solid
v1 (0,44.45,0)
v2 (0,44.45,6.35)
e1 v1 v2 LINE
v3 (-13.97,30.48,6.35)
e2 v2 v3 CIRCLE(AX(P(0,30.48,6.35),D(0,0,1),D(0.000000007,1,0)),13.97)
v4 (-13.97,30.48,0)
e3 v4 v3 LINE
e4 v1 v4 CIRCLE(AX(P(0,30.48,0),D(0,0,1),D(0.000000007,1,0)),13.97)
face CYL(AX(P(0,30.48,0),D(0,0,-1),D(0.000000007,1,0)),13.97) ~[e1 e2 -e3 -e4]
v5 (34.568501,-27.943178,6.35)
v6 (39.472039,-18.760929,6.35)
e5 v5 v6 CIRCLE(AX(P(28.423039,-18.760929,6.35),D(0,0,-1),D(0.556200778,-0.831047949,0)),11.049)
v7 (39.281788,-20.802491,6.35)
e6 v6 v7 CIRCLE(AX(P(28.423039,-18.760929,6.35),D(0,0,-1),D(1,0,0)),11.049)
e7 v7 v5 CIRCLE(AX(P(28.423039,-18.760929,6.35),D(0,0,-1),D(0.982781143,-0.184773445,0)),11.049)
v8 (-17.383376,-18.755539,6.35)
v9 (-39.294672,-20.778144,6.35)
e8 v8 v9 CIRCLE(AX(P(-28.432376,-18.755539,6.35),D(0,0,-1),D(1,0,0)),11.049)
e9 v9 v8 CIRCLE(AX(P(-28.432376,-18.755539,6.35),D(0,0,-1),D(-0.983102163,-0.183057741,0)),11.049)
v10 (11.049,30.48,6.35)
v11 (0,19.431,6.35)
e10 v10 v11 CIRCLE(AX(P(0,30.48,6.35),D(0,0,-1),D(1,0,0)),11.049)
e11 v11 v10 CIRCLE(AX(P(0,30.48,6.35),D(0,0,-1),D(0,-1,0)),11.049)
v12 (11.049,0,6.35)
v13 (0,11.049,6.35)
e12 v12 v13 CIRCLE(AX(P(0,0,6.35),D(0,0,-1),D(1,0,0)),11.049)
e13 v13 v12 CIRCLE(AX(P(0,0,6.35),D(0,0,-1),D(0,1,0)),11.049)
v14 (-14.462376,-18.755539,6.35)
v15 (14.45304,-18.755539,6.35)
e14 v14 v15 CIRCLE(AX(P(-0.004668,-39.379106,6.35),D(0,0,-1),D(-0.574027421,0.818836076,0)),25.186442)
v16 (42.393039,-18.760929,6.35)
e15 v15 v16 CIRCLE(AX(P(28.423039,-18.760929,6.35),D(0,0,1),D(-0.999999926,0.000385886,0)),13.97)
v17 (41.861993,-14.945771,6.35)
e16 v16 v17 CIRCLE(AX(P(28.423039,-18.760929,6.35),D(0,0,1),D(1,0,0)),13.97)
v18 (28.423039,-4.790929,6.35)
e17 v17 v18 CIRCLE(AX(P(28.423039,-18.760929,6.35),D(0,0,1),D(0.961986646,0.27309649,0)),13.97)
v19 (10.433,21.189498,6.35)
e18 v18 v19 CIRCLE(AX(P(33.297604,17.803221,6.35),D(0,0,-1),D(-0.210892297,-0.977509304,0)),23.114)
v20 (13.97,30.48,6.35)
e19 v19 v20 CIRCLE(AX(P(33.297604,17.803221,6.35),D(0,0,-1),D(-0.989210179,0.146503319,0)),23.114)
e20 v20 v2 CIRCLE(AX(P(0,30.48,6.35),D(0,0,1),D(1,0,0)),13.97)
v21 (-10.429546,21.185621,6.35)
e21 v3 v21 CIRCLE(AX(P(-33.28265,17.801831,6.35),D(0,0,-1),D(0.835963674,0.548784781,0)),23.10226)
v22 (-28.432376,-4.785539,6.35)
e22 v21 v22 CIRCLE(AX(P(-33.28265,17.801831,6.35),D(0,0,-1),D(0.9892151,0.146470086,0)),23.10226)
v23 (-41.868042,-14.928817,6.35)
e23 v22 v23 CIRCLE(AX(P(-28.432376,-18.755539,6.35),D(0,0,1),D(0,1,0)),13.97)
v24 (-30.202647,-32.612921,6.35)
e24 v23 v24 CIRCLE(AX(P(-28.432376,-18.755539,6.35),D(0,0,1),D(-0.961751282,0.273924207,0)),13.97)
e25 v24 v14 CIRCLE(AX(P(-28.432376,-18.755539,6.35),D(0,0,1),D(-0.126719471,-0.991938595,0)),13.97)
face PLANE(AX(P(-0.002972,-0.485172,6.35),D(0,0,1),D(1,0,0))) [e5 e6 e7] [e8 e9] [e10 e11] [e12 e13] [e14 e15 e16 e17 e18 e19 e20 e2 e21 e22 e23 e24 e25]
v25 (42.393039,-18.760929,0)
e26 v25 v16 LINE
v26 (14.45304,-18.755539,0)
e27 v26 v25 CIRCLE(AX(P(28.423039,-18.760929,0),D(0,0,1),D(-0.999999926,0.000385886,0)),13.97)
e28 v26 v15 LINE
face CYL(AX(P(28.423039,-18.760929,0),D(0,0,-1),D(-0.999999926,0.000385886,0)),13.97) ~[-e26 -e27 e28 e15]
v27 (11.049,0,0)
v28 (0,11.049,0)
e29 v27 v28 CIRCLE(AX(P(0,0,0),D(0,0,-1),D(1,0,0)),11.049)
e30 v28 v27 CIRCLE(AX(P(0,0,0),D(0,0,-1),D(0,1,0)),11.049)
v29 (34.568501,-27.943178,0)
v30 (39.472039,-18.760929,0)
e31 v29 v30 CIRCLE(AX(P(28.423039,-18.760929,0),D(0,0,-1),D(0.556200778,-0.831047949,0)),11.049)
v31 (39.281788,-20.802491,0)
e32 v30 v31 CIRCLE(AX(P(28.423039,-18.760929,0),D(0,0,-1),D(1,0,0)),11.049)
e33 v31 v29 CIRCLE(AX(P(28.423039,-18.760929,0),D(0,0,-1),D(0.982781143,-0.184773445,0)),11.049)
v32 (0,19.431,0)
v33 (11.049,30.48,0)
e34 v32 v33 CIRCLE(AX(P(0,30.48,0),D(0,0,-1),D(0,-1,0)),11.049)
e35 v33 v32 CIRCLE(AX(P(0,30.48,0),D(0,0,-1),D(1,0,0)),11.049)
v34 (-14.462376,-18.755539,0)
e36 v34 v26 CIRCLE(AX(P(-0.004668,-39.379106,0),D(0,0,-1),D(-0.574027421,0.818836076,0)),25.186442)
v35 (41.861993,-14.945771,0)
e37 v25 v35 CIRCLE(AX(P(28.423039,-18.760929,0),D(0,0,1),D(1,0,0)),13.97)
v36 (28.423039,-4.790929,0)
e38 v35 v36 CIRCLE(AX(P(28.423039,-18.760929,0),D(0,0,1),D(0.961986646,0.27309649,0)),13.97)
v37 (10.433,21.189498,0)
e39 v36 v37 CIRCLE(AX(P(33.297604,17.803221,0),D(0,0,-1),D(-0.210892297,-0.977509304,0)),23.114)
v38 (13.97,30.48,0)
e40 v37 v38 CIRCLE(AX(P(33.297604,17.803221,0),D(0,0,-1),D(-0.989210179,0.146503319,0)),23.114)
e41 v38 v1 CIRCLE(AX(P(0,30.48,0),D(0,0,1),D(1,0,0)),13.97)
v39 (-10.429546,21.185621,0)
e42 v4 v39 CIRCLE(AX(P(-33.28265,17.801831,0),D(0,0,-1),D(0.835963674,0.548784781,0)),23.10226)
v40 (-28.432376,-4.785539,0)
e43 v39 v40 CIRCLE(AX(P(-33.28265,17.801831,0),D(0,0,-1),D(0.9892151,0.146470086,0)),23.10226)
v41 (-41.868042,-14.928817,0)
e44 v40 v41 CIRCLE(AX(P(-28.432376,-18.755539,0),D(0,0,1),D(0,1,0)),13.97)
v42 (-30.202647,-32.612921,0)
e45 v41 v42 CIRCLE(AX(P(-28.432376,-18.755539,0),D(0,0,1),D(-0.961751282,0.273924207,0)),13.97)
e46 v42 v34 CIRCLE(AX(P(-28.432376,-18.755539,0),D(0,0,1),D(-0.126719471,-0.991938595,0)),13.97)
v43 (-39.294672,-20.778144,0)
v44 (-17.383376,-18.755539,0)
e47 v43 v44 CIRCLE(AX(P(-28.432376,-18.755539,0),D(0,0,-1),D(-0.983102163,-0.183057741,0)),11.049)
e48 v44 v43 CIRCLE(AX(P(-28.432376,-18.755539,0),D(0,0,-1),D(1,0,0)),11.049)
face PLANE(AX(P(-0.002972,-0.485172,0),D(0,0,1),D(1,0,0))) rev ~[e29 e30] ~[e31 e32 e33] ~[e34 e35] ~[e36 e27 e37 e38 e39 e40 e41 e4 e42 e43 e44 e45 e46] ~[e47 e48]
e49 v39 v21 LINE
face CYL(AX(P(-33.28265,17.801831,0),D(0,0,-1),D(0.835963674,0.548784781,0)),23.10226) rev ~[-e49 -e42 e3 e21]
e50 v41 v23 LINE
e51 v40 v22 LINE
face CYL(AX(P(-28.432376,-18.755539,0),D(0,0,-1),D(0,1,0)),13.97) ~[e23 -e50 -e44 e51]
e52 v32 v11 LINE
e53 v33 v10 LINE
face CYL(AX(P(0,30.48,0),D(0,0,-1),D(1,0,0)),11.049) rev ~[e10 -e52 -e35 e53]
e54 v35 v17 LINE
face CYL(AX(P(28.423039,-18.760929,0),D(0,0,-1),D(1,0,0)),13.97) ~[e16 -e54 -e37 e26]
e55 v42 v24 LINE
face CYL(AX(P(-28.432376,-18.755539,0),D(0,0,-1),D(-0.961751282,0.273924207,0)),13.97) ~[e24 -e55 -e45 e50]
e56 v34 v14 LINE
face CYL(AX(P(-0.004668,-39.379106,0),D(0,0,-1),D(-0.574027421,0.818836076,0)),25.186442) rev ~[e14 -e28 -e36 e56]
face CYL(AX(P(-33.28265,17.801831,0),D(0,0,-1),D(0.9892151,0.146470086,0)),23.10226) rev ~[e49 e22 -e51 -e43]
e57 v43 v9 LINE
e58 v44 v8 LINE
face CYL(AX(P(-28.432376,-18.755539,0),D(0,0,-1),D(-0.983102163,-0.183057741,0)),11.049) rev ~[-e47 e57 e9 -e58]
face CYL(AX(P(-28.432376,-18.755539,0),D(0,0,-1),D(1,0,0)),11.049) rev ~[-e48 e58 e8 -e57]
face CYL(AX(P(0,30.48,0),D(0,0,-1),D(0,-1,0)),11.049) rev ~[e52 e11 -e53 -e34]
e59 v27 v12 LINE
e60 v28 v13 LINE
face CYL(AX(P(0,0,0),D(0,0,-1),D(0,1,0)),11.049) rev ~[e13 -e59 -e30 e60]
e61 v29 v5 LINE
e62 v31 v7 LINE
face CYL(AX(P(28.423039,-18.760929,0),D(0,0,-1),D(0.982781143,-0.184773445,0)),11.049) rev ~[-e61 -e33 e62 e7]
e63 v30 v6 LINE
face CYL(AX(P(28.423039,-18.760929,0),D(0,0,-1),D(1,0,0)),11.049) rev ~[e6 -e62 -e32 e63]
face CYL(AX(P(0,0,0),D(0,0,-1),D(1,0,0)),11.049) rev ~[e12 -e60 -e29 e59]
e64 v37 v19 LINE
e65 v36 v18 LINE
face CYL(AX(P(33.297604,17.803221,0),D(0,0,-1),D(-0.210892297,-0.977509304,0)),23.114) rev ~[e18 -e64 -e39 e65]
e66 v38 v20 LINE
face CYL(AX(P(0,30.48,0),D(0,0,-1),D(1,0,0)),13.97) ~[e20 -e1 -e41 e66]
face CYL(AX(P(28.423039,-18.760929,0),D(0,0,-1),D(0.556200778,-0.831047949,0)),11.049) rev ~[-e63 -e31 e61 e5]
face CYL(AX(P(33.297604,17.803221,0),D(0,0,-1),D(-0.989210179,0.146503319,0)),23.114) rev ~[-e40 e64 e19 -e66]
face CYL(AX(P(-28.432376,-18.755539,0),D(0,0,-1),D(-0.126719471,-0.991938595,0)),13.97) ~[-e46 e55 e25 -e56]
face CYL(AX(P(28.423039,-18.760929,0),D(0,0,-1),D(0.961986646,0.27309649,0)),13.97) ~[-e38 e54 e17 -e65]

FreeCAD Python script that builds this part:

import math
import FreeCAD as App
import Part
import Sketcher
Q = App.Units.Quantity

doc = App.newDocument("Part")
params = doc.addObject("Spreadsheet::Sheet", "Params")
for row, (alias, value) in enumerate([
    ("sketch1_radius", "0.55 in"),
    ("sketch1_radius2", "0.91 in"),
    ("sketch1_radius3", "0.435 in"),
    ("pad1_length", "0.25 in"),
], start=1):
    params.set(f"A{row}", alias)
    params.set(f"B{row}", "=" + value)
    params.setAlias(f"B{row}", alias)

body = doc.addObject("PartDesign::Body", "Body")

# Sketch on XY plane
sketch1 = body.newObject("Sketcher::SketchObject", "Sketch")
sketch1.AttachmentSupport = (doc.getObject("XY_Plane"), [""])
sketch1.MapMode = "FlatFace"
sketch1.addGeometry(Part.ArcOfCircle(Part.Circle(App.Vector(0, -39.4, 0), App.Vector(0, 0, 1), 25.2), math.radians(55), math.radians(125)), False)
sketch1.addGeometry(Part.ArcOfCircle(Part.Circle(App.Vector(28.4, -18.8, 0), App.Vector(0, 0, 1), 14), math.radians(180), math.radians(360)), False)
sketch1.addGeometry(Part.ArcOfCircle(Part.Circle(App.Vector(28.4, -18.8, 0), App.Vector(0, 0, 1), 14), math.radians(0), math.radians(15.85)), False)
sketch1.addGeometry(Part.ArcOfCircle(Part.Circle(App.Vector(28.4, -18.8, 0), App.Vector(0, 0, 1), 14), math.radians(16), math.radians(90)), False)
sketch1.addGeometry(Part.ArcOfCircle(Part.Circle(App.Vector(33.3, 17.8, 0), App.Vector(0, 0, 1), 23.1), math.radians(172), math.radians(258)), False)
sketch1.addGeometry(Part.ArcOfCircle(Part.Circle(App.Vector(33.3, 17.8, 0), App.Vector(0, 0, 1), 23.1), math.radians(147), math.radians(172)), False)
sketch1.addGeometry(Part.ArcOfCircle(Part.Circle(App.Vector(0, 30.5, 0), App.Vector(0, 0, 1), 14), math.radians(0), math.radians(90)), False)
sketch1.addGeometry(Part.ArcOfCircle(Part.Circle(App.Vector(0, 30.5, 0), App.Vector(0, 0, 1), 14), math.radians(90), math.radians(180)), False)
sketch1.addGeometry(Part.ArcOfCircle(Part.Circle(App.Vector(-33.3, 17.8, 0), App.Vector(0, 0, 1), 23.1), math.radians(8), math.radians(33)), False)
sketch1.addGeometry(Part.ArcOfCircle(Part.Circle(App.Vector(-33.3, 17.8, 0), App.Vector(0, 0, 1), 23.1), math.radians(-78), math.radians(8)), False)
sketch1.addGeometry(Part.ArcOfCircle(Part.Circle(App.Vector(-28.4, -18.8, 0), App.Vector(0, 0, 1), 14), math.radians(90), math.radians(164)), False)
sketch1.addGeometry(Part.ArcOfCircle(Part.Circle(App.Vector(-28.4, -18.8, 0), App.Vector(0, 0, 1), 14), math.radians(164), math.radians(263)), False)
sketch1.addGeometry(Part.ArcOfCircle(Part.Circle(App.Vector(-28.4, -18.8, 0), App.Vector(0, 0, 1), 14), math.radians(-97), math.radians(0)), False)
sketch1.addGeometry(Part.ArcOfCircle(Part.Circle(App.Vector(28.4, -18.8, 0), App.Vector(0, 0, 1), 11), math.radians(0), math.radians(304)), False)
sketch1.addGeometry(Part.ArcOfCircle(Part.Circle(App.Vector(28.4, -18.8, 0), App.Vector(0, 0, 1), 11), math.radians(-10.65), math.radians(0)), False)
sketch1.addGeometry(Part.ArcOfCircle(Part.Circle(App.Vector(28.4, -18.8, 0), App.Vector(0, 0, 1), 11), math.radians(-56), math.radians(-11)), False)
sketch1.addGeometry(Part.ArcOfCircle(Part.Circle(App.Vector(-28.4, -18.8, 0), App.Vector(0, 0, 1), 11), math.radians(0), math.radians(191)), False)
sketch1.addGeometry(Part.ArcOfCircle(Part.Circle(App.Vector(-28.4, -18.8, 0), App.Vector(0, 0, 1), 11), math.radians(-169), math.radians(0)), False)
sketch1.addGeometry(Part.ArcOfCircle(Part.Circle(App.Vector(0, 0, 0), App.Vector(0, 0, 1), 11), math.radians(0), math.radians(90)), False)
sketch1.addGeometry(Part.ArcOfCircle(Part.Circle(App.Vector(0, 0, 0), App.Vector(0, 0, 1), 11), math.radians(90), math.radians(360)), False)
sketch1.addGeometry(Part.ArcOfCircle(Part.Circle(App.Vector(0, 30.5, 0), App.Vector(0, 0, 1), 11), math.radians(0), math.radians(270)), False)
sketch1.addGeometry(Part.ArcOfCircle(Part.Circle(App.Vector(0, 30.5, 0), App.Vector(0, 0, 1), 11), math.radians(-90), math.radians(0)), False)
sketch1.addConstraint(Sketcher.Constraint("Coincident", 0, 1, 1, 1))
sketch1.addConstraint(Sketcher.Constraint("Tangent", 1, 2, 2, 1))
sketch1.addConstraint(Sketcher.Constraint("Tangent", 2, 2, 3, 1))
sketch1.addConstraint(Sketcher.Constraint("Coincident", 3, 2, 4, 2))
sketch1.addConstraint(Sketcher.Constraint("Tangent", 4, 1, 5, 2))
sketch1.addConstraint(Sketcher.Constraint("Coincident", 5, 1, 6, 1))
sketch1.addConstraint(Sketcher.Constraint("Tangent", 6, 2, 7, 1))
sketch1.addConstraint(Sketcher.Constraint("Coincident", 7, 2, 8, 2))
sketch1.addConstraint(Sketcher.Constraint("Tangent", 8, 1, 9, 2))
sketch1.addConstraint(Sketcher.Constraint("Coincident", 9, 1, 10, 1))
sketch1.addConstraint(Sketcher.Constraint("Tangent", 10, 2, 11, 1))
sketch1.addConstraint(Sketcher.Constraint("Tangent", 11, 2, 12, 1))
sketch1.addConstraint(Sketcher.Constraint("Coincident", 12, 2, 0, 2))
sketch1.addConstraint(Sketcher.Constraint("Tangent", 13, 1, 14, 2))
sketch1.addConstraint(Sketcher.Constraint("Tangent", 14, 1, 15, 2))
sketch1.addConstraint(Sketcher.Constraint("Tangent", 15, 1, 13, 2))
sketch1.addConstraint(Sketcher.Constraint("Tangent", 16, 1, 17, 2))
sketch1.addConstraint(Sketcher.Constraint("Coincident", 17, 1, 16, 2))
sketch1.addConstraint(Sketcher.Constraint("Tangent", 18, 1, 19, 2))
sketch1.addConstraint(Sketcher.Constraint("Coincident", 19, 1, 18, 2))
sketch1.addConstraint(Sketcher.Constraint("Tangent", 20, 1, 21, 2))
sketch1.addConstraint(Sketcher.Constraint("Coincident", 21, 1, 20, 2))
sketch1.addConstraint(Sketcher.Constraint("Coincident", 18, 3, -1, 1))
sketch1.addConstraint(Sketcher.Constraint("Coincident", 3, 3, 1, 3))
sketch1.addConstraint(Sketcher.Constraint("Coincident", 12, 3, 10, 3))
sketch1.addConstraint(Sketcher.Constraint("Coincident", 13, 3, 1, 3))
sketch1.addConstraint(Sketcher.Constraint("Coincident", 16, 3, 10, 3))
sketch1.addConstraint(Sketcher.Constraint("Coincident", 20, 3, 6, 3))
sketch1.addConstraint(Sketcher.Constraint("Equal", 4, 5))
sketch1.addConstraint(Sketcher.Constraint("Equal", 3, 6))
sketch1.addConstraint(Sketcher.Constraint("Equal", 6, 7))
sketch1.addConstraint(Sketcher.Constraint("Equal", 8, 9))
sketch1.addConstraint(Sketcher.Constraint("Equal", 7, 10))
sketch1.addConstraint(Sketcher.Constraint("Equal", 15, 16))
sketch1.addConstraint(Sketcher.Constraint("Equal", 17, 18))
sketch1.addConstraint(Sketcher.Constraint("Equal", 19, 20))
sketch1.addConstraint(Sketcher.Constraint("Symmetric", 5, 1, 7, 2, -2))
sketch1.addConstraint(Sketcher.Constraint("PointOnObject", 6, 2, -2))
sketch1.addConstraint(Sketcher.Constraint("PointOnObject", 18, 1, -1))
sketch1.addConstraint(Sketcher.Constraint("PointOnObject", 19, 1, -2))
sketch1.addConstraint(Sketcher.Constraint("PointOnObject", 21, 1, -2))
sketch1.addConstraint(Sketcher.Constraint("Horizontal", 17, 3, 0, 1))
sketch1.addConstraint(Sketcher.Constraint("Horizontal", 15, 3, 1, 2))
sketch1.addConstraint(Sketcher.Constraint("Horizontal", 21, 3, 5, 1))
sketch1.addConstraint(Sketcher.Constraint("Horizontal", 0, 1, 12, 2))
sketch1.addConstraint(Sketcher.Constraint("Horizontal", 1, 2, 13, 1))
sketch1.addConstraint(Sketcher.Constraint("Horizontal", 12, 2, 16, 1))
sketch1.addConstraint(Sketcher.Constraint("Horizontal", 7, 2, 20, 1))
sketch1.addConstraint(Sketcher.Constraint("Vertical", 15, 3, 3, 2))
sketch1.addConstraint(Sketcher.Constraint("Vertical", 17, 3, 9, 1))
sketch1.addConstraint(Sketcher.Constraint("Radius", 1, Q("0.55 in")))
sketch1.addConstraint(Sketcher.Constraint("Radius", 4, Q("0.91 in")))
sketch1.addConstraint(Sketcher.Constraint("Radius", 13, Q("0.435 in")))
sketch1.addConstraint(Sketcher.Constraint("DistanceY", -1, 1, 6, 3, Q("1.2 in")))
sketch1.addConstraint(Sketcher.Constraint("Radius", 0, 25.186442))
sketch1.addConstraint(Sketcher.Constraint("Radius", 8, 23.10226))
sketch1.addConstraint(Sketcher.Constraint("DistanceX", -1, 1, 4, 1, 10.433))
sketch1.addConstraint(Sketcher.Constraint("DistanceY", -1, 1, 4, 1, 21.189498))
sketch1.addConstraint(Sketcher.Constraint("DistanceX", -1, 1, 15, 1, 34.568501))
sketch1.addConstraint(Sketcher.Constraint("DistanceX", 0, 3, -1, 1, 0.004668))
sketch1.addConstraint(Sketcher.Constraint("DistanceX", -1, 1, 1, 3, 28.423039))
sketch1.addConstraint(Sketcher.Constraint("DistanceX", 8, 3, -1, 1, 33.28265))
sketch1.addConstraint(Sketcher.Constraint("DistanceY", 2, 2, -1, 1, 14.945771))
sketch1.addConstraint(Sketcher.Constraint("DistanceY", -1, 1, 8, 1, 21.185621))
sketch1.addConstraint(Sketcher.Constraint("DistanceX", 10, 2, -1, 1, 41.868042))
sketch1.addConstraint(Sketcher.Constraint("DistanceY", 11, 2, -1, 1, 32.612921))
sketch1.addConstraint(Sketcher.Constraint("DistanceY", 14, 1, -1, 1, 20.802491))
sketch1.addConstraint(Sketcher.Constraint("DistanceX", 10, 2, 17, 1, 2.57337))
sketch1.setExpression("Constraints[50]", "Params.sketch1_radius")
sketch1.setExpression("Constraints[51]", "Params.sketch1_radius2")
sketch1.setExpression("Constraints[52]", "Params.sketch1_radius3")
pad1 = body.newObject("PartDesign::Pad", "Pad")
pad1.Profile = sketch1
pad1.setExpression("Length", "Params.pad1_length")

doc.recompute()
